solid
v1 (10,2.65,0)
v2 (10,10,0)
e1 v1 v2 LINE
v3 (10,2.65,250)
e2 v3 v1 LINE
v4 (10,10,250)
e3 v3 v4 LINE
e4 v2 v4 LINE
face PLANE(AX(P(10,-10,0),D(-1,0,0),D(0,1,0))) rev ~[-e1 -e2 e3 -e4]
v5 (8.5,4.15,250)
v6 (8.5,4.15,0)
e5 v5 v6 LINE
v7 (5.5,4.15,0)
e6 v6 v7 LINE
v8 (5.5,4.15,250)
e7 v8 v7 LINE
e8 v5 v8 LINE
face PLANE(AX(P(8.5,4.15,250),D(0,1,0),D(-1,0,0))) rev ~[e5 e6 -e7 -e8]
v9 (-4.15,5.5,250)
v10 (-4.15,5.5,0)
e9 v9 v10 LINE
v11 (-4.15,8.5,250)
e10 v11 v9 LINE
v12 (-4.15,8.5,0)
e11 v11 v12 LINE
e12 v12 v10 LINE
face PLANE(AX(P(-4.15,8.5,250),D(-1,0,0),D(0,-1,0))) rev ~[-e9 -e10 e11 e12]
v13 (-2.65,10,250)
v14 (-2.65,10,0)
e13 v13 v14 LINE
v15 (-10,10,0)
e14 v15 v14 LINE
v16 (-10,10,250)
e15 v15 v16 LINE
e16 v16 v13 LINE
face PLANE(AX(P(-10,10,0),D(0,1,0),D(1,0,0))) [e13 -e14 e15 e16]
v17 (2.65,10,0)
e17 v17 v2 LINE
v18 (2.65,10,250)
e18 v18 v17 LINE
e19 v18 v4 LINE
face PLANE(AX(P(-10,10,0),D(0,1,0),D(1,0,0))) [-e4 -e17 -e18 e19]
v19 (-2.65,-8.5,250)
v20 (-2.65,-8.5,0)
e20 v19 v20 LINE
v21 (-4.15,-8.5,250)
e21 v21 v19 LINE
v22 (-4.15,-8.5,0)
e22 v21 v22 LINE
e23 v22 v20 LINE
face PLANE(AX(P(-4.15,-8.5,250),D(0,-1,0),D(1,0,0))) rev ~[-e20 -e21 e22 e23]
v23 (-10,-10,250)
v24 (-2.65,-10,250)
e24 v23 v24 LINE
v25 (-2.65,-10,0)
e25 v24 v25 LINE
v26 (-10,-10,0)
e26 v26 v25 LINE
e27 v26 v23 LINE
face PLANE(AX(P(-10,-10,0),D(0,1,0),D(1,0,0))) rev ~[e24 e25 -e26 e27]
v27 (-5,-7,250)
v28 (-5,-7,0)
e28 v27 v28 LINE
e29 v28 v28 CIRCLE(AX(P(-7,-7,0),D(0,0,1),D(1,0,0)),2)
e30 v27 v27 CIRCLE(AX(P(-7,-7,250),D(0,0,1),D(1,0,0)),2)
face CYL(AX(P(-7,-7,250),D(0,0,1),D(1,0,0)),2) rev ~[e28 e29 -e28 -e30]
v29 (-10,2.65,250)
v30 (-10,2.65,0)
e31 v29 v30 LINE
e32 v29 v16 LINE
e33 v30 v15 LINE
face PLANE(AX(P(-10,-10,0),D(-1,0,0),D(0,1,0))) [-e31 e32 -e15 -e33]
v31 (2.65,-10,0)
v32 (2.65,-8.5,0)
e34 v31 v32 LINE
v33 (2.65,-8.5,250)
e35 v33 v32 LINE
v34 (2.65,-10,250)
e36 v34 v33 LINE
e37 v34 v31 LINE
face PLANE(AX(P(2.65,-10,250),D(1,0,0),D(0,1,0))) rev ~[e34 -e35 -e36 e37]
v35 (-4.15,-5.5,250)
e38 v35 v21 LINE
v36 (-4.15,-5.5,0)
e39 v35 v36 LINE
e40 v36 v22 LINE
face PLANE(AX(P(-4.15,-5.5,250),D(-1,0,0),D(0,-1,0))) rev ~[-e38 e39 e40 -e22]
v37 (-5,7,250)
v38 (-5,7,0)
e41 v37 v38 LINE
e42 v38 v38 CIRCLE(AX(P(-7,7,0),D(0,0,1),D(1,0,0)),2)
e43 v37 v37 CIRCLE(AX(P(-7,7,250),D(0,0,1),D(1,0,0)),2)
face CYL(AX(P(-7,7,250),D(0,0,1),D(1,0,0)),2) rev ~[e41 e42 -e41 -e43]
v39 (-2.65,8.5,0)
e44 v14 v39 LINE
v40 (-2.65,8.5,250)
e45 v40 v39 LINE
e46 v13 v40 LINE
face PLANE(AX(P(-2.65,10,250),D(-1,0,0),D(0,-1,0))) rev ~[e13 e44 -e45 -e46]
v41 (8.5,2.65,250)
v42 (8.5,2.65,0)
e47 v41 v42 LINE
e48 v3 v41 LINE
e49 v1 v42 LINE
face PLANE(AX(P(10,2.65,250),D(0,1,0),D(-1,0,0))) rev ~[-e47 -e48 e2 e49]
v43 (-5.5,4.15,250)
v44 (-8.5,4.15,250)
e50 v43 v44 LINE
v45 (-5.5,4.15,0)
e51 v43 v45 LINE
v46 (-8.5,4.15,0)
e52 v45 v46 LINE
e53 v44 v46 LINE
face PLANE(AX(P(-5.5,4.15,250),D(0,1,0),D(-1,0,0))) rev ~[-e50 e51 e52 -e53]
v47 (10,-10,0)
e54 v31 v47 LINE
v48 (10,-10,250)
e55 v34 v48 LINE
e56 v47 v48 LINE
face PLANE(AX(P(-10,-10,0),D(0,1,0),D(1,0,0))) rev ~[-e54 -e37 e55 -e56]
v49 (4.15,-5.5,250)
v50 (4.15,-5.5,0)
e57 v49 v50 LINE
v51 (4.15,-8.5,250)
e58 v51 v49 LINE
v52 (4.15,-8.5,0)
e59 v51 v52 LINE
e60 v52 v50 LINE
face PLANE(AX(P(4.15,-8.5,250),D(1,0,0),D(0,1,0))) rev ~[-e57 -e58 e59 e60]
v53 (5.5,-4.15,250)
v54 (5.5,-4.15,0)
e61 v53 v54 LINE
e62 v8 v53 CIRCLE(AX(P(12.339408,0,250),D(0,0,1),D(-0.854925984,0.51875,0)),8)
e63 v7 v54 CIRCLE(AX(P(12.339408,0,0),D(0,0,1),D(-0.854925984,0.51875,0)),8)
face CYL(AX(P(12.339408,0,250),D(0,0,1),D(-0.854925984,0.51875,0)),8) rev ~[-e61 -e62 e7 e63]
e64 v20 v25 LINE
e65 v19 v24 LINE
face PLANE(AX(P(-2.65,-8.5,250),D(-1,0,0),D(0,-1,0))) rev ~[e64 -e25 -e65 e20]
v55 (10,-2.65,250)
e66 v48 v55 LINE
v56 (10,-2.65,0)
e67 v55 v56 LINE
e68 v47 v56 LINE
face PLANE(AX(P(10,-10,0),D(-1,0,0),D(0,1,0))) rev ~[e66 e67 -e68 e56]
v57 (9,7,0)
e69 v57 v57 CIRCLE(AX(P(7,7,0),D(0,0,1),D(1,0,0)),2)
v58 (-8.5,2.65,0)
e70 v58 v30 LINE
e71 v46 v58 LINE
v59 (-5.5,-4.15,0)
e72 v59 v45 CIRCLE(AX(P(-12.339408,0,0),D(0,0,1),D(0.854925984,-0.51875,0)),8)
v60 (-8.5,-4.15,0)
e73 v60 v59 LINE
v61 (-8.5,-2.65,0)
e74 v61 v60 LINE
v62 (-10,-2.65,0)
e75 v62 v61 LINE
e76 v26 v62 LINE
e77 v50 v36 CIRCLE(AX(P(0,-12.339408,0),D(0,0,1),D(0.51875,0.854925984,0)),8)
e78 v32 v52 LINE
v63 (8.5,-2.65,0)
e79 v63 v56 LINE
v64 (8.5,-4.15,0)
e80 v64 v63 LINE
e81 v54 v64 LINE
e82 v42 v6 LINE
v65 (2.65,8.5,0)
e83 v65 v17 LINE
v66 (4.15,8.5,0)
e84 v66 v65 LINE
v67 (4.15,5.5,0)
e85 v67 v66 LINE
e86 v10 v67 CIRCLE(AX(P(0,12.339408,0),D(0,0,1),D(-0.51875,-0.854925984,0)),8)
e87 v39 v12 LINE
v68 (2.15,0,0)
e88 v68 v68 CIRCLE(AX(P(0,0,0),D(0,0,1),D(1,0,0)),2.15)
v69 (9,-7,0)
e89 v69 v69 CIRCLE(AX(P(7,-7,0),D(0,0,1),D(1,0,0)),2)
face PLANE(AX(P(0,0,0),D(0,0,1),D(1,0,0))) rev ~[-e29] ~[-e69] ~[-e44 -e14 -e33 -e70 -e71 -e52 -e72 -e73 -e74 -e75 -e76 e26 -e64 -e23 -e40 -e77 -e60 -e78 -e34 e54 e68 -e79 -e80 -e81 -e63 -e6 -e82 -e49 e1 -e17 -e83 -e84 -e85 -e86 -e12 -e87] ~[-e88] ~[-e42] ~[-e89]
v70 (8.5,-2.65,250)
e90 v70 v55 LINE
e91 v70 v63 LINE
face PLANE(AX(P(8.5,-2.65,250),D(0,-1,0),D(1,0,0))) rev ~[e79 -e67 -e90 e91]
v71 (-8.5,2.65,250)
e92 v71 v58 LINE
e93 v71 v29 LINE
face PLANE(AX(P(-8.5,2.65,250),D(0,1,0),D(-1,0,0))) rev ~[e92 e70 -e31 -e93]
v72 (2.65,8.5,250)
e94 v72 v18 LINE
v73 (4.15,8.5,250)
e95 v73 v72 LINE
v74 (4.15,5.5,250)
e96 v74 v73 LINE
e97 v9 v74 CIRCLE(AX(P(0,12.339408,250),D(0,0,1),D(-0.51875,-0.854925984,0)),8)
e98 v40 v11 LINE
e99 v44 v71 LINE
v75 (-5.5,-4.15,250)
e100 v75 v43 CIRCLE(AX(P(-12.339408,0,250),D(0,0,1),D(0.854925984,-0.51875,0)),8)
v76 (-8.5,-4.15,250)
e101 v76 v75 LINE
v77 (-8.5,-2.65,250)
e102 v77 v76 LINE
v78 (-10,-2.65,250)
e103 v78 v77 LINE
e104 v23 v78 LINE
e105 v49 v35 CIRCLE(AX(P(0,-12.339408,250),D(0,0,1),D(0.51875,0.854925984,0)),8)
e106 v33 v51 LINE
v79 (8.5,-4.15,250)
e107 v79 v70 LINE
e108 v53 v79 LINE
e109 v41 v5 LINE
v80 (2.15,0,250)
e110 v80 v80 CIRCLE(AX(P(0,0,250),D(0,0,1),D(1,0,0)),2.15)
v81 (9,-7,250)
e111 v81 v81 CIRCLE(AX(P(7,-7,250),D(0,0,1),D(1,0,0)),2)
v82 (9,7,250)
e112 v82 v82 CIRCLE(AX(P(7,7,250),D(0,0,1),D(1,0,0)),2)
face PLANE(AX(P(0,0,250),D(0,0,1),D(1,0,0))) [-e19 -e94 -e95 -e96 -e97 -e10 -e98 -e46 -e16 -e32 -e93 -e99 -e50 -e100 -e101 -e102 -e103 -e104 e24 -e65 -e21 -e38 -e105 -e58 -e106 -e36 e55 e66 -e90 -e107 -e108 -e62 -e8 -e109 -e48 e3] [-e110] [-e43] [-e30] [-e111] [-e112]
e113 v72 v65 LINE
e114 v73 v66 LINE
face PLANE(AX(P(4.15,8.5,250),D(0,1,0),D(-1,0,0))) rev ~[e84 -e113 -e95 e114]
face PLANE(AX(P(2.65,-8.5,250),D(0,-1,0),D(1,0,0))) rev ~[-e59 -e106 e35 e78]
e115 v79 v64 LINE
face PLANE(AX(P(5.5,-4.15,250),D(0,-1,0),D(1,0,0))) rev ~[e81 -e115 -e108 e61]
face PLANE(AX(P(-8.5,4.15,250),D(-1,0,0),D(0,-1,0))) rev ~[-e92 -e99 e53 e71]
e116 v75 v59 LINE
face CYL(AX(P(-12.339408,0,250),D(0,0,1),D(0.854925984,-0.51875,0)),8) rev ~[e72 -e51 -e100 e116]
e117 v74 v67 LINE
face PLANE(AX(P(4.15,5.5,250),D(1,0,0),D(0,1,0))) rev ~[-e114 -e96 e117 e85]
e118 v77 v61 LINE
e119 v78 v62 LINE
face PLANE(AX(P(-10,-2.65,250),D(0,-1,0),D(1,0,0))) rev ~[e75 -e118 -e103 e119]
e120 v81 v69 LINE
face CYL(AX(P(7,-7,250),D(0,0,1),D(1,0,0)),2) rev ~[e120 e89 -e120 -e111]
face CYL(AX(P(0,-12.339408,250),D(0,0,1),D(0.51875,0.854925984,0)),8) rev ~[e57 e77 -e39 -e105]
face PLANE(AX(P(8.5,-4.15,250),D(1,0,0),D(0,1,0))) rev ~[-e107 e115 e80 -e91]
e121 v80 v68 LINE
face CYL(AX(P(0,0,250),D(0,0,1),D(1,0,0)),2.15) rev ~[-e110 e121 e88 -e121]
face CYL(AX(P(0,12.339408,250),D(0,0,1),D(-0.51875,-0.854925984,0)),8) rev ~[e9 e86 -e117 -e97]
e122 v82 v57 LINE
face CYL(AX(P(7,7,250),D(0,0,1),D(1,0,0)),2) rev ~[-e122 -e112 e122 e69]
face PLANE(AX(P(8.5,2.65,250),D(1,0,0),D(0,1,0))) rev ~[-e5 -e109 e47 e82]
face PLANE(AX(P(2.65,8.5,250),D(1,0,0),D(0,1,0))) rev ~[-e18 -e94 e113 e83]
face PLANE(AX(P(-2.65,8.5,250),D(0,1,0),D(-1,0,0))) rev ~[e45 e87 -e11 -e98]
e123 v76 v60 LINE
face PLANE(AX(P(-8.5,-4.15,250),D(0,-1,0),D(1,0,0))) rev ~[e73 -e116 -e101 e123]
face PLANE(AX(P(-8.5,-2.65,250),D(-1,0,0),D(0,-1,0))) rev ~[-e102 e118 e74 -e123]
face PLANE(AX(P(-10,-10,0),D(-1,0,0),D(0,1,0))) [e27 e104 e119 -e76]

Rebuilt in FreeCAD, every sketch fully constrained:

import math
import FreeCAD as App
import Part
import Sketcher


def add_polygon(sketch, points):
    """Adds a closed chain of lines whose ends are joined by coincident constraints."""
    first, n = sketch.GeometryCount, len(points)
    for a, b in zip(points, points[1:] + points[:1]):
        sketch.addGeometry(Part.LineSegment(App.Vector(*a, 0), App.Vector(*b, 0)), False)
    for i in range(n):
        sketch.addConstraint(Sketcher.Constraint("Coincident", first + i, 2, first + (i + 1) % n, 1))

doc = App.newDocument("Part")
body = doc.addObject("PartDesign::Body", "Body")

# Sketch on XY plane
sketch1 = doc.addObject("Sketcher::SketchObject", "Sketch")
body.addObject(sketch1)
sketch1.AttachmentSupport = (doc.XY_Plane, [""])
sketch1.MapMode = "FlatFace"
add_polygon(sketch1, [(-10, 10), (-10, -10), (10, -10), (10, 10)])  # lines 0-3
sketch1.addConstraint([
    Sketcher.Constraint("Vertical", 0),
    Sketcher.Constraint("Horizontal", 1),
    Sketcher.Constraint("Vertical", 2),
    Sketcher.Constraint("Horizontal", 3),
    Sketcher.Constraint("Symmetric", 0, 2, 2, 2, -1, 1),
    Sketcher.Constraint("Equal", 3, 0),
    Sketcher.Constraint("DistanceX", 1, 1, 1, 2, 20.0),
])
pad1 = doc.addObject("PartDesign::Pad", "Pad")
body.addObject(pad1)
pad1.Profile = sketch1
pad1.Length = 250

# Sketch on XY plane
sketch2 = doc.addObject("Sketcher::SketchObject", "Sketch001")
body.addObject(sketch2)
sketch2.AttachmentSupport = (doc.XY_Plane, [""])
sketch2.MapMode = "FlatFace"
sketch2.AttachmentOffset = App.Placement(App.Vector(0, 0, 250), App.Rotation())
sketch2.addGeometry([
    Part.Circle(App.Vector(0, 0, 0), App.Vector(0, 0, 1), 2.15),  # 0
    Part.Circle(App.Vector(-7, 7, 0), App.Vector(0, 0, 1), 2),  # 1
    Part.Circle(App.Vector(7, 7, 0), App.Vector(0, 0, 1), 2),  # 2
    Part.Circle(App.Vector(7, -7, 0), App.Vector(0, 0, 1), 2),  # 3
    Part.Circle(App.Vector(-7, -7, 0), App.Vector(0, 0, 1), 2),  # 4
    Part.LineSegment(App.Vector(-2.65, 10, 0), App.Vector(-2.65, 8.5, 0)),  # 5
    Part.LineSegment(App.Vector(-2.65, 8.5, 0), App.Vector(-4.15, 8.5, 0)),  # 6
    Part.LineSegment(App.Vector(-4.15, 8.5, 0), App.Vector(-4.15, 5.5, 0)),  # 7
    Part.ArcOfCircle(Part.Circle(App.Vector(0, 12.339408, 0), App.Vector(0, 0, 1), 8), math.radians(-121.248441), math.radians(-58.751559)),  # 8
    Part.LineSegment(App.Vector(4.15, 5.5, 0), App.Vector(4.15, 8.5, 0)),  # 9
    Part.LineSegment(App.Vector(4.15, 8.5, 0), App.Vector(2.65, 8.5, 0)),  # 10
    Part.LineSegment(App.Vector(2.65, 8.5, 0), App.Vector(2.65, 10, 0)),  # 11
    Part.LineSegment(App.Vector(2.65, 10, 0), App.Vector(-2.65, 10, 0)),  # 12
    Part.LineSegment(App.Vector(10, 2.65, 0), App.Vector(8.5, 2.65, 0)),  # 13
    Part.LineSegment(App.Vector(8.5, 2.65, 0), App.Vector(8.5, 4.15, 0)),  # 14
    Part.LineSegment(App.Vector(8.5, 4.15, 0), App.Vector(5.5, 4.15, 0)),  # 15
    Part.ArcOfCircle(Part.Circle(App.Vector(12.339408, 0, 0), App.Vector(0, 0, 1), 8), math.radians(148.751559), math.radians(211.248441)),  # 16
    Part.LineSegment(App.Vector(5.5, -4.15, 0), App.Vector(8.5, -4.15, 0)),  # 17
    Part.LineSegment(App.Vector(8.5, -4.15, 0), App.Vector(8.5, -2.65, 0)),  # 18
    Part.LineSegment(App.Vector(8.5, -2.65, 0), App.Vector(10, -2.65, 0)),  # 19
    Part.LineSegment(App.Vector(10, -2.65, 0), App.Vector(10, 2.65, 0)),  # 20
    Part.LineSegment(App.Vector(2.65, -10, 0), App.Vector(2.65, -8.5, 0)),  # 21
    Part.LineSegment(App.Vector(2.65, -8.5, 0), App.Vector(4.15, -8.5, 0)),  # 22
    Part.LineSegment(App.Vector(4.15, -8.5, 0), App.Vector(4.15, -5.5, 0)),  # 23
    Part.ArcOfCircle(Part.Circle(App.Vector(0, -12.339408, 0), App.Vector(0, 0, 1), 8), math.radians(58.751559), math.radians(121.248441)),  # 24
    Part.LineSegment(App.Vector(-4.15, -5.5, 0), App.Vector(-4.15, -8.5, 0)),  # 25
    Part.LineSegment(App.Vector(-4.15, -8.5, 0), App.Vector(-2.65, -8.5, 0)),  # 26
    Part.LineSegment(App.Vector(-2.65, -8.5, 0), App.Vector(-2.65, -10, 0)),  # 27
    Part.LineSegment(App.Vector(-2.65, -10, 0), App.Vector(2.65, -10, 0)),  # 28
    Part.LineSegment(App.Vector(-10, -2.65, 0), App.Vector(-8.5, -2.65, 0)),  # 29
    Part.LineSegment(App.Vector(-8.5, -2.65, 0), App.Vector(-8.5, -4.15, 0)),  # 30
    Part.LineSegment(App.Vector(-8.5, -4.15, 0), App.Vector(-5.5, -4.15, 0)),  # 31
    Part.ArcOfCircle(Part.Circle(App.Vector(-12.339408, 0, 0), App.Vector(0, 0, 1), 8), math.radians(-31.248441), math.radians(31.248441)),  # 32
    Part.LineSegment(App.Vector(-5.5, 4.15, 0), App.Vector(-8.5, 4.15, 0)),  # 33
    Part.LineSegment(App.Vector(-8.5, 4.15, 0), App.Vector(-8.5, 2.65, 0)),  # 34
    Part.LineSegment(App.Vector(-8.5, 2.65, 0), App.Vector(-10, 2.65, 0)),  # 35
    Part.LineSegment(App.Vector(-10, 2.65, 0), App.Vector(-10, -2.65, 0)),  # 36
], False)
sketch2.addConstraint([
    Sketcher.Constraint("Coincident", 5, 2, 6, 1),
    Sketcher.Constraint("Coincident", 6, 2, 7, 1),
    Sketcher.Constraint("Coincident", 7, 2, 8, 1),
    Sketcher.Constraint("Coincident", 8, 2, 9, 1),
    Sketcher.Constraint("Coincident", 9, 2, 10, 1),
    Sketcher.Constraint("Coincident", 10, 2, 11, 1),
    Sketcher.Constraint("Coincident", 11, 2, 12, 1),
    Sketcher.Constraint("Coincident", 12, 2, 5, 1),
    Sketcher.Constraint("Coincident", 13, 2, 14, 1),
    Sketcher.Constraint("Coincident", 14, 2, 15, 1),
    Sketcher.Constraint("Coincident", 15, 2, 16, 1),
    Sketcher.Constraint("Coincident", 16, 2, 17, 1),
    Sketcher.Constraint("Coincident", 17, 2, 18, 1),
    Sketcher.Constraint("Coincident", 18, 2, 19, 1),
    Sketcher.Constraint("Coincident", 19, 2, 20, 1),
    Sketcher.Constraint("Coincident", 20, 2, 13, 1),
    Sketcher.Constraint("Coincident", 21, 2, 22, 1),
    Sketcher.Constraint("Coincident", 22, 2, 23, 1),
    Sketcher.Constraint("Coincident", 23, 2, 24, 1),
    Sketcher.Constraint("Coincident", 24, 2, 25, 1),
    Sketcher.Constraint("Coincident", 25, 2, 26, 1),
    Sketcher.Constraint("Coincident", 26, 2, 27, 1),
    Sketcher.Constraint("Coincident", 27, 2, 28, 1),
    Sketcher.Constraint("Coincident", 28, 2, 21, 1),
    Sketcher.Constraint("Coincident", 29, 2, 30, 1),
    Sketcher.Constraint("Coincident", 30, 2, 31, 1),
    Sketcher.Constraint("Coincident", 31, 2, 32, 1),
    Sketcher.Constraint("Coincident", 32, 2, 33, 1),
    Sketcher.Constraint("Coincident", 33, 2, 34, 1),
    Sketcher.Constraint("Coincident", 34, 2, 35, 1),
    Sketcher.Constraint("Coincident", 35, 2, 36, 1),
    Sketcher.Constraint("Coincident", 36, 2, 29, 1),
    Sketcher.Constraint("Vertical", 5),
    Sketcher.Constraint("Horizontal", 6),
    Sketcher.Constraint("Vertical", 7),
    Sketcher.Constraint("Vertical", 9),
    Sketcher.Constraint("Horizontal", 10),
    Sketcher.Constraint("Vertical", 11),
    Sketcher.Constraint("Horizontal", 12),
    Sketcher.Constraint("Horizontal", 13),
    Sketcher.Constraint("Vertical", 14),
    Sketcher.Constraint("Horizontal", 15),
    Sketcher.Constraint("Horizontal", 17),
    Sketcher.Constraint("Vertical", 18),
    Sketcher.Constraint("Horizontal", 19),
    Sketcher.Constraint("Vertical", 20),
    Sketcher.Constraint("Vertical", 21),
    Sketcher.Constraint("Horizontal", 22),
    Sketcher.Constraint("Vertical", 23),
    Sketcher.Constraint("Vertical", 25),
    Sketcher.Constraint("Horizontal", 26),
    Sketcher.Constraint("Vertical", 27),
    Sketcher.Constraint("Horizontal", 28),
    Sketcher.Constraint("Horizontal", 29),
    Sketcher.Constraint("Vertical", 30),
    Sketcher.Constraint("Horizontal", 31),
    Sketcher.Constraint("Horizontal", 33),
    Sketcher.Constraint("Vertical", 34),
    Sketcher.Constraint("Horizontal", 35),
    Sketcher.Constraint("Vertical", 36),
    Sketcher.Constraint("Coincident", 0, 3, -1, 1),
    Sketcher.Constraint("Equal", 1, 2),
    Sketcher.Constraint("Equal", 2, 3),
    Sketcher.Constraint("Equal", 3, 4),
    Sketcher.Constraint("Equal", 8, 16),
    Sketcher.Constraint("Equal", 16, 24),
    Sketcher.Constraint("Equal", 24, 32),
    Sketcher.Constraint("Symmetric", 1, 3, 3, 3, -1, 1),
    Sketcher.Constraint("Symmetric", 2, 3, 4, 3, -1, 1),
    Sketcher.Constraint("Symmetric", 8, 3, 24, 3, -1, 1),
    Sketcher.Constraint("Symmetric", 16, 3, 32, 3, -1, 1),
    Sketcher.Constraint("Symmetric", 5, 2, 21, 2, -1, 1),
    Sketcher.Constraint("Symmetric", 9, 2, 25, 2, -1, 1),
    Sketcher.Constraint("Symmetric", 11, 2, 27, 2, -1, 1),
    Sketcher.Constraint("Symmetric", 13, 2, 29, 2, -1, 1),
    Sketcher.Constraint("Symmetric", 17, 2, 33, 2, -1, 1),
    Sketcher.Constraint("Symmetric", 19, 2, 35, 2, -1, 1),
    Sketcher.Constraint("Symmetric", 1, 3, 2, 3, -2),
    Sketcher.Constraint("Symmetric", 7, 2, 8, 2, -2),
    Sketcher.Constraint("Symmetric", 5, 2, 10, 2, -2),
    Sketcher.Constraint("Symmetric", 18, 2, 29, 2, -2),
    Sketcher.Constraint("Symmetric", 16, 2, 31, 2, -2),
    Sketcher.Constraint("Horizontal", 23, 2, 24, 2),
    Sketcher.Constraint("Horizontal", 15, 2, 32, 2),
    Sketcher.Constraint("Equal", 10, 13),
    Sketcher.Constraint("Equal", 35, 5),
    Sketcher.Constraint("Equal", 33, 7),
    Sketcher.Constraint("Equal", 11, 14),
    Sketcher.Constraint("Equal", 28, 20),
    Sketcher.Constraint("Diameter", 1, 4.0),
    Sketcher.Constraint("Radius", 8, 8.0),
    Sketcher.Constraint("Diameter", 0, 4.3),
    Sketcher.Constraint("DistanceX", 15, 2, 15, 1, 3.0),
    Sketcher.Constraint("DistanceX", 6, 2, 6, 1, 1.5),
    Sketcher.Constraint("DistanceX", 12, 2, 12, 1, 5.3),
    Sketcher.Constraint("DistanceX", 1, 3, -1, 1, 7.0),
    Sketcher.Constraint("DistanceY", -1, 1, 1, 3, 7.0),
    Sketcher.Constraint("DistanceY", -1, 1, 11, 2, 10.0),
    Sketcher.Constraint("DistanceX", -1, 1, 19, 2, 10.0),
])
pocket1 = doc.addObject("PartDesign::Pocket", "Pocket")
body.addObject(pocket1)
pocket1.Profile = sketch2
pocket1.Length = 300

doc.recompute()
